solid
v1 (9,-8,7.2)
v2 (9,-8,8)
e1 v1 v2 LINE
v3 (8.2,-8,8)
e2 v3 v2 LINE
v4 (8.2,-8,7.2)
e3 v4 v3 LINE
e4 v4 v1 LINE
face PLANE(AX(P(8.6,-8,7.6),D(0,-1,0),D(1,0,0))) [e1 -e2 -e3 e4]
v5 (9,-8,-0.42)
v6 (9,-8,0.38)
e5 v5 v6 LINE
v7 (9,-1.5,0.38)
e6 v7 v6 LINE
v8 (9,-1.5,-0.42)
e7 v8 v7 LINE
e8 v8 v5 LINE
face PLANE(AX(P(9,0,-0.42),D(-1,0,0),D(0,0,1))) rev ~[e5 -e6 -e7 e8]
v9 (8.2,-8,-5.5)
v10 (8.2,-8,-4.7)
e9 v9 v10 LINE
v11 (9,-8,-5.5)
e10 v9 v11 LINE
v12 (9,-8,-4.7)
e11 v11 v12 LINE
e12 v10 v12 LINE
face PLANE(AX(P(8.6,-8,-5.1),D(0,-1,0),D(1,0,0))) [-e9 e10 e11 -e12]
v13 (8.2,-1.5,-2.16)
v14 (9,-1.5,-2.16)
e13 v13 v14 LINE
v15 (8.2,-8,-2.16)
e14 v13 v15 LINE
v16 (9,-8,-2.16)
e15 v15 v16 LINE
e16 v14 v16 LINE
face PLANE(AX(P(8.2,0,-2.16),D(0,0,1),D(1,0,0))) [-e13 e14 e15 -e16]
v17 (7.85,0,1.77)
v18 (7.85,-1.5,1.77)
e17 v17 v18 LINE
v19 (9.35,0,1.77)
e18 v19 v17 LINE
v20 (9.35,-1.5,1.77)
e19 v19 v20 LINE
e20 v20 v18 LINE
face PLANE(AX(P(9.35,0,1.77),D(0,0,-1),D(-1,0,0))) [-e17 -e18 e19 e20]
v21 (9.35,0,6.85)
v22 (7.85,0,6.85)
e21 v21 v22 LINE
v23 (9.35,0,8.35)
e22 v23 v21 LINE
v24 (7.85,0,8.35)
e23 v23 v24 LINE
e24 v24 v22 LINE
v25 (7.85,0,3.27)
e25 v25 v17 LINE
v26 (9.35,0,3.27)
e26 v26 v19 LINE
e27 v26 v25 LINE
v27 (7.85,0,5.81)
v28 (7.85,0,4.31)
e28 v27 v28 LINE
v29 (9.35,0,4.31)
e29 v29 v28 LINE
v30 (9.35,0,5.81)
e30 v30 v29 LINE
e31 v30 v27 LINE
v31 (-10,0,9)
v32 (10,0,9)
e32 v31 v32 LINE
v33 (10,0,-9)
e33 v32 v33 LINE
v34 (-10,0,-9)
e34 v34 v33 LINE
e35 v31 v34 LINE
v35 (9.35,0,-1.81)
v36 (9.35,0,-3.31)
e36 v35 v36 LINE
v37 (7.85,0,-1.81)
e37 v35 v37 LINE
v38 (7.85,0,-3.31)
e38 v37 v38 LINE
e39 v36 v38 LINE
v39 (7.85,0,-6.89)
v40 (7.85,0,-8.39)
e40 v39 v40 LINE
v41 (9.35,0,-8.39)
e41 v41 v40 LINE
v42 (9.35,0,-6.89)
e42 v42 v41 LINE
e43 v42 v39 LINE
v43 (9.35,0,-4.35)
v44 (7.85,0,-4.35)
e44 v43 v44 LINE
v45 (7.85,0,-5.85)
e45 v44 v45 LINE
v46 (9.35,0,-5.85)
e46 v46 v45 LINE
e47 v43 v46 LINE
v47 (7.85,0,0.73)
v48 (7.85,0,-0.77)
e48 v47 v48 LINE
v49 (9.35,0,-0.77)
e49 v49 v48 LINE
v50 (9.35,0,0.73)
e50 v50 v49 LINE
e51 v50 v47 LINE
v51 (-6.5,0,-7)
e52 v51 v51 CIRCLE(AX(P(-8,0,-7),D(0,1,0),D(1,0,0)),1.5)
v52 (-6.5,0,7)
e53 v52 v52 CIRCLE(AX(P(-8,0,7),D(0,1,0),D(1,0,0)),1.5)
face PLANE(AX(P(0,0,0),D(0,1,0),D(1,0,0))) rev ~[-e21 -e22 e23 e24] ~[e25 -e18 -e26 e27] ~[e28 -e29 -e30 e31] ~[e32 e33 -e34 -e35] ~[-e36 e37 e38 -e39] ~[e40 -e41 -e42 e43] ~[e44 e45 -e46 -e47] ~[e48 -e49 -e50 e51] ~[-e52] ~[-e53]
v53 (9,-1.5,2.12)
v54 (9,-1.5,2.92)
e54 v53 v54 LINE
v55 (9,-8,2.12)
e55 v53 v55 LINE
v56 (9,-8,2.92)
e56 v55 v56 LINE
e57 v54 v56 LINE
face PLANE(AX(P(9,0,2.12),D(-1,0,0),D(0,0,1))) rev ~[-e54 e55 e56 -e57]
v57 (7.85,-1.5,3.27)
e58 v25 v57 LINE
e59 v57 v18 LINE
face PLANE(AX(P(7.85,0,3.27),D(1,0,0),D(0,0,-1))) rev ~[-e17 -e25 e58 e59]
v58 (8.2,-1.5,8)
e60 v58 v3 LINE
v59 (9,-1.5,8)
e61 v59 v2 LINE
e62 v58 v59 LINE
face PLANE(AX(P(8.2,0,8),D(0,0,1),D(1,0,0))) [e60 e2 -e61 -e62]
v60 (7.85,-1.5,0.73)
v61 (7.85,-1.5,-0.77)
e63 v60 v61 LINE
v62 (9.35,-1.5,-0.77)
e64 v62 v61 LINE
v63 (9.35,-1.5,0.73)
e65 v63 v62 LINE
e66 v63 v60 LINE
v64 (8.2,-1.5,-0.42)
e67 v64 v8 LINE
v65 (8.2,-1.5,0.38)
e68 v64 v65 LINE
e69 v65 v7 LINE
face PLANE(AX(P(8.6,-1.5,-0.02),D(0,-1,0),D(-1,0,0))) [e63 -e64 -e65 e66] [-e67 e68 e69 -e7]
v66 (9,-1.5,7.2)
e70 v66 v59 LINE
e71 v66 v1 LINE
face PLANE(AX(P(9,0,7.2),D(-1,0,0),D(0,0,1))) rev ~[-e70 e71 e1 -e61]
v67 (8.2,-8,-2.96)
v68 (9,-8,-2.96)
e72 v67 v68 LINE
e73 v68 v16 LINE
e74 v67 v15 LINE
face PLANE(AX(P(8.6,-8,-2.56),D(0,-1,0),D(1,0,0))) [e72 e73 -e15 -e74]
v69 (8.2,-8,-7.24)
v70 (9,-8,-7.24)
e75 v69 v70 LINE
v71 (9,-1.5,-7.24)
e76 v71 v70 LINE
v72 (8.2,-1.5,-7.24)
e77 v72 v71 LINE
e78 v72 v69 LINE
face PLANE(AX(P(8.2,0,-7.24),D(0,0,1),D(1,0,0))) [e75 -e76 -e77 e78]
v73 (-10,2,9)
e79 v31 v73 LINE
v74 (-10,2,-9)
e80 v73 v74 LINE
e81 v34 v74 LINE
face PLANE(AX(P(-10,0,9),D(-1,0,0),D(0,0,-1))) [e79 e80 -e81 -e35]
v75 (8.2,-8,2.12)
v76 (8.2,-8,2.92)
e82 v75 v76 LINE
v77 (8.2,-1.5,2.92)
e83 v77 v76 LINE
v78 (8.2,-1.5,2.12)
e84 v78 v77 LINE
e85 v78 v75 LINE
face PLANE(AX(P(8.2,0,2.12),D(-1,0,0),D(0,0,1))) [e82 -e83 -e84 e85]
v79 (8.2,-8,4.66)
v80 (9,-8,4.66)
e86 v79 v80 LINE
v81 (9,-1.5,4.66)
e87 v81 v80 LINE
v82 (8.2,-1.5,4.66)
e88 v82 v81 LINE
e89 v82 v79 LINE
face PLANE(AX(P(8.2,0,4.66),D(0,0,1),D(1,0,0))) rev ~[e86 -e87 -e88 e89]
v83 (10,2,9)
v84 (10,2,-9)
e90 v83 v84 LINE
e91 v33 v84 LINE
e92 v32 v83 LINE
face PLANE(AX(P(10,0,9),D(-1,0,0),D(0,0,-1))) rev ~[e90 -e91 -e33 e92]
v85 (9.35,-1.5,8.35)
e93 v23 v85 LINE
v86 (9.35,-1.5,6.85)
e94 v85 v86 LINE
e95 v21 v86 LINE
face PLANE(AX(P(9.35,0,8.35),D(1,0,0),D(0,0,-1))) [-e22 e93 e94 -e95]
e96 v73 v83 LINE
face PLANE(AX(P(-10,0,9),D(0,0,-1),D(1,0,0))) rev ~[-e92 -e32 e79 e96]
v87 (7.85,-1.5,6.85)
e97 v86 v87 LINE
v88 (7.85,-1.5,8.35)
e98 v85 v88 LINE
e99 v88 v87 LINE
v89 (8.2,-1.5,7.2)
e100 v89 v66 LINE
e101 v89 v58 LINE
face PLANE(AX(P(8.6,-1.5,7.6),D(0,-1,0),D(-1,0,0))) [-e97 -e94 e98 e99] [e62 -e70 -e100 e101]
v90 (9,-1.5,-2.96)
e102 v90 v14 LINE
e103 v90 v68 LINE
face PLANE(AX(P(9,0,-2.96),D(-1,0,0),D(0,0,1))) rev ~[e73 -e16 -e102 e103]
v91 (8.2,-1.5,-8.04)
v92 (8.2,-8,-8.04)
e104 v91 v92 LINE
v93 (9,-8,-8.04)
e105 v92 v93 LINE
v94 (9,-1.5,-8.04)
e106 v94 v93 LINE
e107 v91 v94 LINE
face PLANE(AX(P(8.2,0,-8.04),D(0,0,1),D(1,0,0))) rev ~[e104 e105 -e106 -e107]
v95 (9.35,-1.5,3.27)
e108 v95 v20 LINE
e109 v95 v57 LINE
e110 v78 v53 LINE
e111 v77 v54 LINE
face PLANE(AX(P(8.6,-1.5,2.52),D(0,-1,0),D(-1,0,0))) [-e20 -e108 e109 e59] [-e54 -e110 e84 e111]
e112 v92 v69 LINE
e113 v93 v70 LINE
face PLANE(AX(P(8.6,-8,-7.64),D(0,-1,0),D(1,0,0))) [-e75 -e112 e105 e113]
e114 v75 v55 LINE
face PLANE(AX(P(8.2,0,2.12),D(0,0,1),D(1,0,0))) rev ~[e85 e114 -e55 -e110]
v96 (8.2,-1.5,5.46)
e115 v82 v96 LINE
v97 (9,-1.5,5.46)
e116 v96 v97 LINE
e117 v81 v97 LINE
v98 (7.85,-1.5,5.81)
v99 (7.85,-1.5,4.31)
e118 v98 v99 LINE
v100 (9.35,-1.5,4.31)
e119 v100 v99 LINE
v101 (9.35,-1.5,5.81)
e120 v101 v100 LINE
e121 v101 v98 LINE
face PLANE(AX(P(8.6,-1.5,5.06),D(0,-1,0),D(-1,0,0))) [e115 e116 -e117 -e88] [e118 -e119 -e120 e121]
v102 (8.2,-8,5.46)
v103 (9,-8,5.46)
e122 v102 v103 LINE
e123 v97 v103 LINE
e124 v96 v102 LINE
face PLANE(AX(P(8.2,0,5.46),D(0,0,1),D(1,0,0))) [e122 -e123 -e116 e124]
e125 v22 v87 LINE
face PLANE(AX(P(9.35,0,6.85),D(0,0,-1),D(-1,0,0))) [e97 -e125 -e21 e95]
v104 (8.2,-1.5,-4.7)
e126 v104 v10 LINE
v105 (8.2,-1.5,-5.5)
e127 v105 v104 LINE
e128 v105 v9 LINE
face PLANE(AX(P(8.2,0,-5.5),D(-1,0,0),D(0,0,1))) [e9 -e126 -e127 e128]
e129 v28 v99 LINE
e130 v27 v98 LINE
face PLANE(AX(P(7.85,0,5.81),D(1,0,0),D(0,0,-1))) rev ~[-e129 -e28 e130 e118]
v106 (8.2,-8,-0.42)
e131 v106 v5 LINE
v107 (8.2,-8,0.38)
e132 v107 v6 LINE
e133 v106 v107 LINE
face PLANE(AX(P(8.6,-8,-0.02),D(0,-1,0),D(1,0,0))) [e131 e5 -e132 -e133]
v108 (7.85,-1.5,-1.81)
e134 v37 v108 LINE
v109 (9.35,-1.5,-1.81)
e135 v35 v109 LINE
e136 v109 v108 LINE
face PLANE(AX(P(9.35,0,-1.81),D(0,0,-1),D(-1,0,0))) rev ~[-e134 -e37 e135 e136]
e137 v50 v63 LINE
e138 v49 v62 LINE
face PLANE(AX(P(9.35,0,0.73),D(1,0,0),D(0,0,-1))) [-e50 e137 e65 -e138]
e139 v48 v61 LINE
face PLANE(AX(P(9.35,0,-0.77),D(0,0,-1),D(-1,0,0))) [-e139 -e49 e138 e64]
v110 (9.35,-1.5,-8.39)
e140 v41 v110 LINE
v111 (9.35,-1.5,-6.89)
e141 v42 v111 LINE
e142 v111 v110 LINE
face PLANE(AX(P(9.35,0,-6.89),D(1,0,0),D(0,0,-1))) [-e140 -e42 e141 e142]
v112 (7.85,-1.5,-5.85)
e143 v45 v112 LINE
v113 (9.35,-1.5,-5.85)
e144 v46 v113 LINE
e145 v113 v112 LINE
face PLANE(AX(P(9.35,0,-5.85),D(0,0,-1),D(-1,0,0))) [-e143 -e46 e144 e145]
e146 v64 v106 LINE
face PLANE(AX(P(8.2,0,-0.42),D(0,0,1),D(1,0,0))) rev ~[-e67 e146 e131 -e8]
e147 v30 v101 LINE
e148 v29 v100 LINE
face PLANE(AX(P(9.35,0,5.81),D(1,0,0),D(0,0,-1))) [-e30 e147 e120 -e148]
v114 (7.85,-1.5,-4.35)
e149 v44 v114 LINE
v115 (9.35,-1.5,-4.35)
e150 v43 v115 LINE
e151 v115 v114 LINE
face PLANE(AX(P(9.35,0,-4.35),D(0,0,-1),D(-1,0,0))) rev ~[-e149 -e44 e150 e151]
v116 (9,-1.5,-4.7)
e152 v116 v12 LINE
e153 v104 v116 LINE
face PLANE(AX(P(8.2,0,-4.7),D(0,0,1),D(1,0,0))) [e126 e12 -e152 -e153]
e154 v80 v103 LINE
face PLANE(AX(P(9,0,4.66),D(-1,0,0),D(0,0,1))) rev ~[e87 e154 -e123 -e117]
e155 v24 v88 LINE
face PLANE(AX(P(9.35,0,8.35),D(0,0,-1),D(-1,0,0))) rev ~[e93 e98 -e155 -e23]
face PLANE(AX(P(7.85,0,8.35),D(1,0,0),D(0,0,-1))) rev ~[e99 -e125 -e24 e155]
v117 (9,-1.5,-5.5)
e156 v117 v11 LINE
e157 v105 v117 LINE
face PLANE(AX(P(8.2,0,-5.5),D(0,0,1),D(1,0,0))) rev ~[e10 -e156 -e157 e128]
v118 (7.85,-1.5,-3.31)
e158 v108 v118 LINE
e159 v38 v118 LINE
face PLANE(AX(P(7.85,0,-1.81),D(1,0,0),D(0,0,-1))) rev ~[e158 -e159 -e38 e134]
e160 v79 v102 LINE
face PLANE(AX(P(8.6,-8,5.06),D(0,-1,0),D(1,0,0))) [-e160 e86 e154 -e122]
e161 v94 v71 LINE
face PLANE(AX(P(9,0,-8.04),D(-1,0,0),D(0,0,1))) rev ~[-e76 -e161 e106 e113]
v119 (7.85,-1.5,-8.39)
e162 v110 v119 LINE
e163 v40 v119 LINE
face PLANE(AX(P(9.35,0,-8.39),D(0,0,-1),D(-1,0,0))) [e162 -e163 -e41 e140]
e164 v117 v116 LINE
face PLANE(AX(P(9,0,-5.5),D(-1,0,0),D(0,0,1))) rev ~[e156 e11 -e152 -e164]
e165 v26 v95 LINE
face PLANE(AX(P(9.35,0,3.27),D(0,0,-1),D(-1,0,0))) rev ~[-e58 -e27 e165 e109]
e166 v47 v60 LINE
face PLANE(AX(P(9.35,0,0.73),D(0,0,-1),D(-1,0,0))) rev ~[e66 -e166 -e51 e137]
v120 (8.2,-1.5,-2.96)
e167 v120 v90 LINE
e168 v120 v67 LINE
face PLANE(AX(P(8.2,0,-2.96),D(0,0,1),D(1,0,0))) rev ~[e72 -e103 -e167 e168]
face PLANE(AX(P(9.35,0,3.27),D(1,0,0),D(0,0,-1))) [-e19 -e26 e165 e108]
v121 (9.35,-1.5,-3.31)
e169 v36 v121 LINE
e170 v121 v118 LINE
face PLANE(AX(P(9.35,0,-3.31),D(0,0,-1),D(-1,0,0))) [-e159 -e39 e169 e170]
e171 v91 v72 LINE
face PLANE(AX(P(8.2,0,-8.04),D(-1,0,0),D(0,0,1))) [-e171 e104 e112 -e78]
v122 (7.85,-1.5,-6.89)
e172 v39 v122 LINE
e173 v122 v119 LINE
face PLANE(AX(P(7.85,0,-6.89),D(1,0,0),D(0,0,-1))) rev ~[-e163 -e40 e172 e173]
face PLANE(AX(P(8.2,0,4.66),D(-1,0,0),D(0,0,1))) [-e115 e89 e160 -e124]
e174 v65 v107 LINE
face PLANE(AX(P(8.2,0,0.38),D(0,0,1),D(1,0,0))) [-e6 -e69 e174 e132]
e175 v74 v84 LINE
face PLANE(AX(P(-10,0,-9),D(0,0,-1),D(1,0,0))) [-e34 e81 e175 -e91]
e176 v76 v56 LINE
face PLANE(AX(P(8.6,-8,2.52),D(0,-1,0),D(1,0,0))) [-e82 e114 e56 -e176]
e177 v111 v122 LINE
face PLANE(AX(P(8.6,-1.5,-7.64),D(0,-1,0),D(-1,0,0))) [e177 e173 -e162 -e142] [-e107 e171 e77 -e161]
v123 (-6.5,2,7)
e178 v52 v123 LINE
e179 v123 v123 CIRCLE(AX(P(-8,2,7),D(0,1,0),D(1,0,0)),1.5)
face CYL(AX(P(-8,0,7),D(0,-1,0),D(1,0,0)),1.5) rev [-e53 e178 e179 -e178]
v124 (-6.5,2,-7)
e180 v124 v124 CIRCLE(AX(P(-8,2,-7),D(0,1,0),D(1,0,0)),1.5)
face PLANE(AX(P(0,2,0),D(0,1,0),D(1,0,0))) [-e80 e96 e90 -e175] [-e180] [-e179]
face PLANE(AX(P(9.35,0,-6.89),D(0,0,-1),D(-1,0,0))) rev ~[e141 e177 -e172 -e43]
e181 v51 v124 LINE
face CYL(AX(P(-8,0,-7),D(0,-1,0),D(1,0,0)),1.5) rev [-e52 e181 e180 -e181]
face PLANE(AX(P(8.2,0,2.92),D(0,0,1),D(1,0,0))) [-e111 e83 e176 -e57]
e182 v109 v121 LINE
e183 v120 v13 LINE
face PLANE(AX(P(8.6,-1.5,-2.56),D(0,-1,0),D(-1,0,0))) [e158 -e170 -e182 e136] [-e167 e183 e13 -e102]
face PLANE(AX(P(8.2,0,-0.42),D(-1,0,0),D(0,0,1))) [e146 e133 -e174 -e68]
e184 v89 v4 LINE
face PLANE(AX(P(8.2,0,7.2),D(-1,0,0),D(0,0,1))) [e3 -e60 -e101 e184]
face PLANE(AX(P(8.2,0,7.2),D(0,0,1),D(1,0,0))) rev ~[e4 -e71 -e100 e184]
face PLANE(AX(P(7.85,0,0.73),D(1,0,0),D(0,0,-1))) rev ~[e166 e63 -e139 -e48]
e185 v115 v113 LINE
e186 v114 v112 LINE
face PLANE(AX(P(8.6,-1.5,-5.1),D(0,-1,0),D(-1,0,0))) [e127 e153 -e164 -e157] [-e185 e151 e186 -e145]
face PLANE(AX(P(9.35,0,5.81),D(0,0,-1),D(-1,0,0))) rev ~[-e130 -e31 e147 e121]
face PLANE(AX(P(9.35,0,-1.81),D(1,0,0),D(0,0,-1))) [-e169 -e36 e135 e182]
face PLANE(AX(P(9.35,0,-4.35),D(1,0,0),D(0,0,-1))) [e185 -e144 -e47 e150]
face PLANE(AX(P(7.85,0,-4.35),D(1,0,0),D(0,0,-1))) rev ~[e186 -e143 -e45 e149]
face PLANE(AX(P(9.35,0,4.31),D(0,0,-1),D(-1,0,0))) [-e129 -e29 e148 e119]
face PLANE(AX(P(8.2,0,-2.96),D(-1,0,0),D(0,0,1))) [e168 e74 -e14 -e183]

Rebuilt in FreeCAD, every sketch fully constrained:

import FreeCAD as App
import Part
import Sketcher


def add_polygon(sketch, points):
    """Adds a closed chain of lines whose ends are joined by coincident constraints."""
    first, n = sketch.GeometryCount, len(points)
    for a, b in zip(points, points[1:] + points[:1]):
        sketch.addGeometry(Part.LineSegment(App.Vector(*a, 0), App.Vector(*b, 0)), False)
    for i in range(n):
        sketch.addConstraint(Sketcher.Constraint("Coincident", first + i, 2, first + (i + 1) % n, 1))

doc = App.newDocument("Part")
body = doc.addObject("PartDesign::Body", "Body")

sketch1 = body.newObject("Sketcher::SketchObject", "Sketch")
sketch1.AttachmentSupport = (doc.getObject("XZ_Plane"), [""])
sketch1.MapMode = "FlatFace"
add_polygon(sketch1, [(-10, -9), (-10, 9), (10, 9), (10, -9)])
sketch1.addGeometry(Part.Circle(App.Vector(-8, 7, 0), App.Vector(0, 0, 1), 1.5), False)
sketch1.addGeometry(Part.Circle(App.Vector(-8, -7, 0), App.Vector(0, 0, 1), 1.5), False)
sketch1.addConstraint([
    Sketcher.Constraint("Vertical", 0),
    Sketcher.Constraint("Horizontal", 1),
    Sketcher.Constraint("Vertical", 2),
    Sketcher.Constraint("Horizontal", 3),
    Sketcher.Constraint("Equal", 4, 5),
    Sketcher.Constraint("Symmetric", 0, 2, 2, 2, -1, 1),
    Sketcher.Constraint("Symmetric", 4, 3, 5, 3, -1),
    Sketcher.Constraint("Diameter", 4, 3.0),
    Sketcher.Constraint("DistanceX", 1, 1, 1, 2, 20.0),
    Sketcher.Constraint("DistanceY", 0, 1, 0, 2, 18.0),
    Sketcher.Constraint("DistanceX", 4, 3, -1, 1, 8.0),
    Sketcher.Constraint("DistanceY", -1, 1, 4, 3, 7.0),
])
pad1 = body.newObject("PartDesign::Pad", "Pad")
pad1.Profile = sketch1
pad1.Length = 2
pad1.Reversed = True

sketch2 = body.newObject("Sketcher::SketchObject", "Sketch001")
sketch2.AttachmentSupport = (doc.getObject("XZ_Plane"), [""])
sketch2.MapMode = "FlatFace"
add_polygon(sketch2, [(8.2, 8), (8.2, 7.2), (9, 7.2), (9, 8)])
sketch2.addConstraint([
    Sketcher.Constraint("Vertical", 0),
    Sketcher.Constraint("Horizontal", 1),
    Sketcher.Constraint("Vertical", 2),
    Sketcher.Constraint("Horizontal", 3),
    Sketcher.Constraint("Equal", 3, 0),
    Sketcher.Constraint("DistanceX", 1, 1, 1, 2, 0.8),
    Sketcher.Constraint("DistanceX", -1, 1, 1, 2, 9.0),
    Sketcher.Constraint("DistanceY", -1, 1, 2, 2, 8.0),
])
pad2 = body.newObject("PartDesign::Pad", "Pad001")
pad2.Profile = sketch2
pad2.Length = 8

sketch3 = body.newObject("Sketcher::SketchObject", "Sketch002")
sketch3.AttachmentSupport = (doc.getObject("XZ_Plane"), [""])
sketch3.MapMode = "FlatFace"
add_polygon(sketch3, [(9.35, 6.85), (9.35, 8.35), (7.85, 8.35), (7.85, 6.85)])
sketch3.addConstraint([
    Sketcher.Constraint("Vertical", 0),
    Sketcher.Constraint("Horizontal", 1),
    Sketcher.Constraint("Vertical", 2),
    Sketcher.Constraint("Horizontal", 3),
    Sketcher.Constraint("Equal", 3, 0),
    Sketcher.Constraint("DistanceX", 1, 2, 1, 1, 1.5),
    Sketcher.Constraint("DistanceX", -1, 1, 0, 2, 9.35),
    Sketcher.Constraint("DistanceY", -1, 1, 0, 2, 8.35),
])
pad3 = body.newObject("PartDesign::Pad", "Pad002")
pad3.Profile = sketch3
pad3.Length = 1.5
doc.recompute()

linearpattern = body.newObject("PartDesign::LinearPattern", "LinearPattern")
linearpattern.Originals = [pad2, pad3]
linearpattern.Direction = (doc.getObject("Z_Axis"), [""])
linearpattern.Mode = "offset"
linearpattern.Offset = 2.54
linearpattern.Occurrences = 7
linearpattern.Reversed = True
body.Tip = linearpattern

doc.recompute()
